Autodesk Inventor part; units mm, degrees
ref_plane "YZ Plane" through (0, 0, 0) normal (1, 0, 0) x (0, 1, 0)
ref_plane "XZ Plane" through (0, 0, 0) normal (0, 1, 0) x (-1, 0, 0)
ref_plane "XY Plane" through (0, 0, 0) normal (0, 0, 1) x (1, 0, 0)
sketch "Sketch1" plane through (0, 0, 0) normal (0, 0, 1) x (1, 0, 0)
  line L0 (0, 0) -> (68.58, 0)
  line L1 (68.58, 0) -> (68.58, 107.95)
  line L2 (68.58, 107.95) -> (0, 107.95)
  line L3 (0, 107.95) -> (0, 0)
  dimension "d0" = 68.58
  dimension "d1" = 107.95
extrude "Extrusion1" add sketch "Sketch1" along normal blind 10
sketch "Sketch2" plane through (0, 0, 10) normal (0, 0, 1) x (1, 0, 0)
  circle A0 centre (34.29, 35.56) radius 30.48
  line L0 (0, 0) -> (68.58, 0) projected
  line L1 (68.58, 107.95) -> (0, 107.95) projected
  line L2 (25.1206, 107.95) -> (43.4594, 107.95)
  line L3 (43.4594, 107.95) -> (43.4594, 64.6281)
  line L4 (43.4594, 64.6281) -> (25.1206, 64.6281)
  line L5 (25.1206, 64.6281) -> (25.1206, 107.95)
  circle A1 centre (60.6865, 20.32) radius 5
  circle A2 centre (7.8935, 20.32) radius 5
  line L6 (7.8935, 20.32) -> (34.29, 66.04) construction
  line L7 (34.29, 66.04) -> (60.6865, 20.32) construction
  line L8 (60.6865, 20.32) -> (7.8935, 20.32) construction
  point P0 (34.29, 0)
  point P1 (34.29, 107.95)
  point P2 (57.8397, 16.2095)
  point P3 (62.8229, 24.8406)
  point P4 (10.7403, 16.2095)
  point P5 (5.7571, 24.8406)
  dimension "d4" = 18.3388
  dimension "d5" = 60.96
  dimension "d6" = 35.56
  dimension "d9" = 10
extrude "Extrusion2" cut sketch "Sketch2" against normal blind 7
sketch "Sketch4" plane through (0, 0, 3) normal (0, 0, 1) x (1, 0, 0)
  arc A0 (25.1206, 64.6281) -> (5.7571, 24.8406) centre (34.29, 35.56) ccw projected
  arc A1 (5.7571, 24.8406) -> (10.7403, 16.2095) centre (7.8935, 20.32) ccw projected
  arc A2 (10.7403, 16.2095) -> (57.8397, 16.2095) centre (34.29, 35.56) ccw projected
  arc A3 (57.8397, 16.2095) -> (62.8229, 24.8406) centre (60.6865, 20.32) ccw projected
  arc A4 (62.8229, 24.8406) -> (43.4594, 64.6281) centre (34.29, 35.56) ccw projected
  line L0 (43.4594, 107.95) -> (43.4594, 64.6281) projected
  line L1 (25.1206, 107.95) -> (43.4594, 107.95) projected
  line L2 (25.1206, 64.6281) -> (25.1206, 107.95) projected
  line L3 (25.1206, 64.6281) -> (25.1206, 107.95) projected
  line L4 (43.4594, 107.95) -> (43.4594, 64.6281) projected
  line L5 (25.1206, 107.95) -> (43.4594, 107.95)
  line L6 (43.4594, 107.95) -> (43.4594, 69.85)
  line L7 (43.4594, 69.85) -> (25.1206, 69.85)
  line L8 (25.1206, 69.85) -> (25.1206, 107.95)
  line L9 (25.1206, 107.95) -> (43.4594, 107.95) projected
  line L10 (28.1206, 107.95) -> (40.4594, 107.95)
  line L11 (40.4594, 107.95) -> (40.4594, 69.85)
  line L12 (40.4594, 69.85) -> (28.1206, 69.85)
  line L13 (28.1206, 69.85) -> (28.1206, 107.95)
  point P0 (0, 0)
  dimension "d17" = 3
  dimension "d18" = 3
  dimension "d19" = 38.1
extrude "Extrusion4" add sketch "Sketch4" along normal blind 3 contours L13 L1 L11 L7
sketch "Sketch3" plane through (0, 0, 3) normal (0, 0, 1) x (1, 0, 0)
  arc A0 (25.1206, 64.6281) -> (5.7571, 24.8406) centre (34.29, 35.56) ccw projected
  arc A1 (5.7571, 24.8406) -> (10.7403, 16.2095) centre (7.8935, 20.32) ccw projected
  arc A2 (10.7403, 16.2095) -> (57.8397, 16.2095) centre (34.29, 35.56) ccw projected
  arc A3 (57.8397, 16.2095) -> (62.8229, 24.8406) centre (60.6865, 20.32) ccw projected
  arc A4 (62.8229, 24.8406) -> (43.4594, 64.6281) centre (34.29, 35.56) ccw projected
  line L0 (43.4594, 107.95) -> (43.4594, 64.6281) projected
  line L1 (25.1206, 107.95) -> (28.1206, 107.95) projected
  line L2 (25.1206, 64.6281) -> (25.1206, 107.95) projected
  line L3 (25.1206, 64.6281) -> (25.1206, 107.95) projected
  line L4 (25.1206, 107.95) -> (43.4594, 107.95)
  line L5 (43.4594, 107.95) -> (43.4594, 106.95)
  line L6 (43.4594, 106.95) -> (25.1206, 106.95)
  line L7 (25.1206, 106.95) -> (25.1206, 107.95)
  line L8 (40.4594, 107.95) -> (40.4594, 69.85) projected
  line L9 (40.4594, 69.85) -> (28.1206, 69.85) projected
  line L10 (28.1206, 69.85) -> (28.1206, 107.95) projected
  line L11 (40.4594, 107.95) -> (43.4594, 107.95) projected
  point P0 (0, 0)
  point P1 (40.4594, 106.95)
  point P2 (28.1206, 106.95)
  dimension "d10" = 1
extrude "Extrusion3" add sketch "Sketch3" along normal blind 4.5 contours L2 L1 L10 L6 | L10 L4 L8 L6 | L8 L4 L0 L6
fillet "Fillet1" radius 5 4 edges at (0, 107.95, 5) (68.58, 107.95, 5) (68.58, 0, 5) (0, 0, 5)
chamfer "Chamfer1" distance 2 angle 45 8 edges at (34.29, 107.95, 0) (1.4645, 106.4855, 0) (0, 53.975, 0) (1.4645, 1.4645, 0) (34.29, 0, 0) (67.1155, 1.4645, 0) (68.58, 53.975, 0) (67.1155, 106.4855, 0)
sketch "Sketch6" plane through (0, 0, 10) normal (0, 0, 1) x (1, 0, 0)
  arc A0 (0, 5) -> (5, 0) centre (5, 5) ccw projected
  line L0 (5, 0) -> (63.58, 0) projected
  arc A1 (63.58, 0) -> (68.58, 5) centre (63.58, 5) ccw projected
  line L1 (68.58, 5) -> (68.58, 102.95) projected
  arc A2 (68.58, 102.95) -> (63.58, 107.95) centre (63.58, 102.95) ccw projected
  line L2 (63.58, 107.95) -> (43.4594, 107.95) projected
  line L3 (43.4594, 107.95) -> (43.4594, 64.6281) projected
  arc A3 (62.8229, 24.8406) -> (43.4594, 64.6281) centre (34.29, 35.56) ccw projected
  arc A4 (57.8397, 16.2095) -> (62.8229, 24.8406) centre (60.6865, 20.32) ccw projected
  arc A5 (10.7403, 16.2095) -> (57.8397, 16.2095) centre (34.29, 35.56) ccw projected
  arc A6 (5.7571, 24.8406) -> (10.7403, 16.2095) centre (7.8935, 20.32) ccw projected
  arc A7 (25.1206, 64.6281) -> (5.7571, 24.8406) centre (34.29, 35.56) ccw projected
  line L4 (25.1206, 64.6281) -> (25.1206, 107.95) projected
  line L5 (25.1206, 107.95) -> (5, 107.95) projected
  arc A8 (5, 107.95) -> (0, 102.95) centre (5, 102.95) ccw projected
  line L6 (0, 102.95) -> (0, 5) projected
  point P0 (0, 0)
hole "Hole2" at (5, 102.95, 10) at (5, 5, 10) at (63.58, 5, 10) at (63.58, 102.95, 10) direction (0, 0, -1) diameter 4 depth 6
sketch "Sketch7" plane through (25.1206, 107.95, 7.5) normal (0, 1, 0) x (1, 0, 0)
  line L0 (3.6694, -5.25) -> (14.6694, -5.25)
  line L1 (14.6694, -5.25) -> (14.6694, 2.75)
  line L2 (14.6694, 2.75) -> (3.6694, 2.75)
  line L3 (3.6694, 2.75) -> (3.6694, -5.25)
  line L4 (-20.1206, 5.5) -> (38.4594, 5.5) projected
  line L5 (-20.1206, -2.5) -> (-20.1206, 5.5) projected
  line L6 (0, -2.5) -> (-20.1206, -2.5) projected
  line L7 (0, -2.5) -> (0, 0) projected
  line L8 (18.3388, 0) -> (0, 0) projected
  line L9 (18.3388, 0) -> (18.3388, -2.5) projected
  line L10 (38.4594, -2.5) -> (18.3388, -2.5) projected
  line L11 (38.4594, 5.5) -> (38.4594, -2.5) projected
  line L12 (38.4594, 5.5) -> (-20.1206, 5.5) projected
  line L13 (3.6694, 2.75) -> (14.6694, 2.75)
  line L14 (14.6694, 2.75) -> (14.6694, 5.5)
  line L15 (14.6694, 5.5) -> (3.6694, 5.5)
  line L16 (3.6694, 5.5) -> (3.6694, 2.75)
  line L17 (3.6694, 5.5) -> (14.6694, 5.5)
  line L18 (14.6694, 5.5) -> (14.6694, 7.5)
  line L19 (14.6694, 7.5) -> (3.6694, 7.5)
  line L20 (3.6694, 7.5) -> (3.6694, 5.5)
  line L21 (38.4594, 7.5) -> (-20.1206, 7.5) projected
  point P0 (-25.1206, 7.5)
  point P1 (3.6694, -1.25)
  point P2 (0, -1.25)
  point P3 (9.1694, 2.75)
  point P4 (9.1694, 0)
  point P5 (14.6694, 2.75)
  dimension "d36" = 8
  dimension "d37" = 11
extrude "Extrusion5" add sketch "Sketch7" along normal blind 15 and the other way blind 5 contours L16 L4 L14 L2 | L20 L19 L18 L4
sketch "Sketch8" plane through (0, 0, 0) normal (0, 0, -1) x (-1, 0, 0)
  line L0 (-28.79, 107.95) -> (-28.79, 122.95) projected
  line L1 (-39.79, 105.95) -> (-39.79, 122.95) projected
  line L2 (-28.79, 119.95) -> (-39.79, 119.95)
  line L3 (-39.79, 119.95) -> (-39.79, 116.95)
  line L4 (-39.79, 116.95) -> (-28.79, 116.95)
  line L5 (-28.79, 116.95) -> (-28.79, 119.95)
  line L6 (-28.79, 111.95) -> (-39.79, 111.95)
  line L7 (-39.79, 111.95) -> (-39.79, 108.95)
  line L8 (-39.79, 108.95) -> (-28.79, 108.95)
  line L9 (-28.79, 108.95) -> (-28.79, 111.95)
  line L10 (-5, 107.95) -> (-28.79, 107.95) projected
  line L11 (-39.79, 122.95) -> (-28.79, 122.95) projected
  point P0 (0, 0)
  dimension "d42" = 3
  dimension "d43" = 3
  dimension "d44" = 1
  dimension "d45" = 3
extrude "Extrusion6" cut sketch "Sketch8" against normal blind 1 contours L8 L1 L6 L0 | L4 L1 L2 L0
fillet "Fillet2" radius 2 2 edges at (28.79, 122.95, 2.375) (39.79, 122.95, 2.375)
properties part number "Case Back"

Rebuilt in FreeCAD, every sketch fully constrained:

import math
import FreeCAD as App
import Part
import Sketcher
from FreeCAD import Vector
Q = App.Units.Quantity


def edges_at(feature, points):
    """Names of the edges that pass closest to the given points."""
    edges = feature.Shape.Edges
    near = lambda p: min(range(len(edges)), key=lambda i: edges[i].distToShape(Part.Vertex(*p))[0])
    return sorted({f"Edge{near(p) + 1}" for p in points})

doc = App.newDocument("Part")
body = doc.addObject("PartDesign::Body", "Body")

# Sketch on XY plane
sketch1 = body.newObject("Sketcher::SketchObject", "Sketch")
sketch1.AttachmentSupport = (doc.getObject("XY_Plane"), [""])
sketch1.MapMode = "FlatFace"
sketch1.addGeometry(Part.LineSegment(Vector(0, 108, 0), Vector(0, 0, 0)), False)
sketch1.addGeometry(Part.LineSegment(Vector(0, 0, 0), Vector(69, 0, 0)), False)
sketch1.addGeometry(Part.LineSegment(Vector(69, 0, 0), Vector(69, 108, 0)), False)
sketch1.addGeometry(Part.LineSegment(Vector(69, 108, 0), Vector(0, 108, 0)), False)
sketch1.addConstraint(Sketcher.Constraint("Coincident", 0, 2, 1, 1))
sketch1.addConstraint(Sketcher.Constraint("Coincident", 1, 2, 2, 1))
sketch1.addConstraint(Sketcher.Constraint("Coincident", 2, 2, 3, 1))
sketch1.addConstraint(Sketcher.Constraint("Coincident", 3, 2, 0, 1))
sketch1.addConstraint(Sketcher.Constraint("Vertical", 0))
sketch1.addConstraint(Sketcher.Constraint("Horizontal", 1))
sketch1.addConstraint(Sketcher.Constraint("Vertical", 2))
sketch1.addConstraint(Sketcher.Constraint("Horizontal", 3))
sketch1.addConstraint(Sketcher.Constraint("Coincident", 0, 2, -1, 1))
sketch1.addConstraint(Sketcher.Constraint("DistanceX", 1, 1, 1, 2, Q("68.58 mm")))
sketch1.addConstraint(Sketcher.Constraint("DistanceY", 0, 2, 0, 1, Q("107.95 mm")))
pad1 = body.newObject("PartDesign::Pad", "Pad")
pad1.Profile = sketch1
pad1.Length = 10

# Sketch on XY plane
sketch2 = body.newObject("Sketcher::SketchObject", "Sketch001")
sketch2.AttachmentSupport = (doc.getObject("XY_Plane"), [""])
sketch2.MapMode = "FlatFace"
sketch2.AttachmentOffset = App.Placement(Vector(0, 0, 10), App.Rotation())
sketch2.addGeometry(Part.ArcOfCircle(Part.Circle(Vector(34, 36, 0), Vector(0, 0, 1), 30), math.radians(-21), math.radians(72)), False)
sketch2.addGeometry(Part.LineSegment(Vector(43, 65, 0), Vector(43, 108, 0)), False)
sketch2.addGeometry(Part.LineSegment(Vector(43, 108, 0), Vector(25, 108, 0)), False)
sketch2.addGeometry(Part.LineSegment(Vector(25, 108, 0), Vector(25, 65, 0)), False)
sketch2.addGeometry(Part.ArcOfCircle(Part.Circle(Vector(34, 36, 0), Vector(0, 0, 1), 30), math.radians(108), math.radians(201)), False)
sketch2.addGeometry(Part.ArcOfCircle(Part.Circle(Vector(8, 20, 0), Vector(0, 0, 1), 5), math.radians(115), math.radians(305)), False)
sketch2.addGeometry(Part.ArcOfCircle(Part.Circle(Vector(34, 36, 0), Vector(0, 0, 1), 30), math.radians(-141), math.radians(-39)), False)
sketch2.addGeometry(Part.ArcOfCircle(Part.Circle(Vector(61, 20, 0), Vector(0, 0, 1), 5), math.radians(-125), math.radians(65)), False)
sketch2.addConstraint(Sketcher.Constraint("Coincident", 0, 2, 1, 1))
sketch2.addConstraint(Sketcher.Constraint("Coincident", 1, 2, 2, 1))
sketch2.addConstraint(Sketcher.Constraint("Coincident", 2, 2, 3, 1))
sketch2.addConstraint(Sketcher.Constraint("Coincident", 3, 2, 4, 1))
sketch2.addConstraint(Sketcher.Constraint("Coincident", 4, 2, 5, 1))
sketch2.addConstraint(Sketcher.Constraint("Coincident", 5, 2, 6, 1))
sketch2.addConstraint(Sketcher.Constraint("Coincident", 6, 2, 7, 1))
sketch2.addConstraint(Sketcher.Constraint("Coincident", 7, 2, 0, 1))
sketch2.addConstraint(Sketcher.Constraint("Vertical", 1))
sketch2.addConstraint(Sketcher.Constraint("Horizontal", 2))
sketch2.addConstraint(Sketcher.Constraint("Vertical", 3))
sketch2.addConstraint(Sketcher.Constraint("Coincident", 4, 3, 0, 3))
sketch2.addConstraint(Sketcher.Constraint("Coincident", 6, 3, 0, 3))
sketch2.addConstraint(Sketcher.Constraint("Equal", 0, 4))
sketch2.addConstraint(Sketcher.Constraint("Equal", 4, 6))
sketch2.addConstraint(Sketcher.Constraint("Equal", 5, 7))
sketch2.addConstraint(Sketcher.Constraint("Horizontal", 5, 3, 7, 3))
sketch2.addConstraint(Sketcher.Constraint("Horizontal", 0, 2, 3, 2))
sketch2.addConstraint(Sketcher.Constraint("Horizontal", 5, 2, 6, 2))
sketch2.addConstraint(Sketcher.Constraint("Radius", 5, Q("5 mm")))
sketch2.addConstraint(Sketcher.Constraint("Radius", 0, Q("30.48 mm")))
sketch2.addConstraint(Sketcher.Constraint("DistanceY", -1, 1, 0, 3, Q("35.56 mm")))
sketch2.addConstraint(Sketcher.Constraint("DistanceX", 2, 2, 2, 1, Q("18.3388 mm")))
sketch2.addConstraint(Sketcher.Constraint("DistanceY", 1, 1, 1, 2, Q("43.322 mm")))
sketch2.addConstraint(Sketcher.Constraint("DistanceX", -1, 1, 0, 3, Q("34.29 mm")))
sketch2.addConstraint(Sketcher.Constraint("DistanceY", -1, 1, 5, 3, Q("20.32 mm")))
sketch2.addConstraint(Sketcher.Constraint("DistanceX", 5, 3, 7, 3, Q("52.793 mm")))
pocket1 = body.newObject("PartDesign::Pocket", "Pocket")
pocket1.Profile = sketch2
pocket1.Length = 7

# Sketch on XY plane
sketch3 = body.newObject("Sketcher::SketchObject", "Sketch002")
sketch3.AttachmentSupport = (doc.getObject("XY_Plane"), [""])
sketch3.MapMode = "FlatFace"
sketch3.AttachmentOffset = App.Placement(Vector(0, 0, 3), App.Rotation())
sketch3.addGeometry(Part.LineSegment(Vector(28, 108, 0), Vector(28, 70, 0)), False)
sketch3.addGeometry(Part.LineSegment(Vector(28, 70, 0), Vector(40, 70, 0)), False)
sketch3.addGeometry(Part.LineSegment(Vector(40, 70, 0), Vector(40, 108, 0)), False)
sketch3.addGeometry(Part.LineSegment(Vector(40, 108, 0), Vector(28, 108, 0)), False)
sketch3.addConstraint(Sketcher.Constraint("Coincident", 0, 2, 1, 1))
sketch3.addConstraint(Sketcher.Constraint("Coincident", 1, 2, 2, 1))
sketch3.addConstraint(Sketcher.Constraint("Coincident", 2, 2, 3, 1))
sketch3.addConstraint(Sketcher.Constraint("Coincident", 3, 2, 0, 1))
sketch3.addConstraint(Sketcher.Constraint("Vertical", 0))
sketch3.addConstraint(Sketcher.Constraint("Horizontal", 1))
sketch3.addConstraint(Sketcher.Constraint("Vertical", 2))
sketch3.addConstraint(Sketcher.Constraint("Horizontal", 3))
sketch3.addConstraint(Sketcher.Constraint("DistanceY", 0, 2, 0, 1, Q("38.1 mm")))
sketch3.addConstraint(Sketcher.Constraint("DistanceY", -1, 1, 0, 2, Q("69.85 mm")))
sketch3.addConstraint(Sketcher.Constraint("DistanceX", 1, 1, 1, 2, Q("12.3388 mm")))
sketch3.addConstraint(Sketcher.Constraint("DistanceX", -1, 1, 0, 2, Q("28.1206 mm")))
pad2 = body.newObject("PartDesign::Pad", "Pad001")
pad2.Profile = sketch3
pad2.Length = 3

# Sketch on XY plane
sketch4 = body.newObject("Sketcher::SketchObject", "Sketch003")
sketch4.AttachmentSupport = (doc.getObject("XY_Plane"), [""])
sketch4.MapMode = "FlatFace"
sketch4.AttachmentOffset = App.Placement(Vector(0, 0, 3), App.Rotation())
sketch4.addGeometry(Part.LineSegment(Vector(25.1, 108, 0), Vector(25.1, 107, 0)), False)
sketch4.addGeometry(Part.LineSegment(Vector(25.1, 107, 0), Vector(43.5, 107, 0)), False)
sketch4.addGeometry(Part.LineSegment(Vector(43.5, 107, 0), Vector(43.5, 108, 0)), False)
sketch4.addGeometry(Part.LineSegment(Vector(43.5, 108, 0), Vector(25.1, 108, 0)), False)
sketch4.addConstraint(Sketcher.Constraint("Coincident", 0, 2, 1, 1))
sketch4.addConstraint(Sketcher.Constraint("Coincident", 1, 2, 2, 1))
sketch4.addConstraint(Sketcher.Constraint("Coincident", 2, 2, 3, 1))
sketch4.addConstraint(Sketcher.Constraint("Coincident", 3, 2, 0, 1))
sketch4.addConstraint(Sketcher.Constraint("Vertical", 0))
sketch4.addConstraint(Sketcher.Constraint("Horizontal", 1))
sketch4.addConstraint(Sketcher.Constraint("Vertical", 2))
sketch4.addConstraint(Sketcher.Constraint("Horizontal", 3))
sketch4.addConstraint(Sketcher.Constraint("DistanceY", 0, 2, 0, 1, Q("1 mm")))
sketch4.addConstraint(Sketcher.Constraint("DistanceY", -1, 1, 0, 2, Q("106.95 mm")))
sketch4.addConstraint(Sketcher.Constraint("DistanceX", 1, 1, 1, 2, Q("18.3388 mm")))
sketch4.addConstraint(Sketcher.Constraint("DistanceX", -1, 1, 0, 2, Q("25.1206 mm")))
pad3 = body.newObject("PartDesign::Pad", "Pad002")
pad3.Profile = sketch4
pad3.Length = 4.5
doc.recompute()

fillet = body.newObject("PartDesign::Fillet", "Fillet")
fillet.Base = (pad3, edges_at(pad3, [
    (0, 107.95, 5),
    (68.58, 107.95, 5),
    (68.58, 0, 5),
    (0, 0, 5),
]))
fillet.Radius = 5
doc.recompute()

chamfer = body.newObject("PartDesign::Chamfer", "Chamfer")
chamfer.Base = (fillet, edges_at(fillet, [
    (34.29, 107.95, 0),
    (1.464, 106.486, 0),
    (0, 53.975, 0),
    (1.464, 1.464, 0),
    (34.29, 0, 0),
    (67.115, 1.464, 0),
    (68.58, 53.975, 0),
    (67.115, 106.486, 0),
]))
chamfer.Size = 2

# Sketch on XY plane
sketch5 = body.newObject("Sketcher::SketchObject", "Sketch004")
sketch5.AttachmentSupport = (doc.getObject("XY_Plane"), [""])
sketch5.MapMode = "FlatFace"
sketch5.AttachmentOffset = App.Placement(Vector(0, 0, 10), App.Rotation())
sketch5.addGeometry(Part.Circle(Vector(5, 103, 0), Vector(0, 0, 1), 2), False)
sketch5.addGeometry(Part.Circle(Vector(5, 5, 0), Vector(0, 0, 1), 2), False)
sketch5.addGeometry(Part.Circle(Vector(63.6, 5, 0), Vector(0, 0, 1), 2), False)
sketch5.addGeometry(Part.Circle(Vector(63.6, 103, 0), Vector(0, 0, 1), 2), False)
sketch5.addConstraint(Sketcher.Constraint("Equal", 0, 1))
sketch5.addConstraint(Sketcher.Constraint("Equal", 1, 2))
sketch5.addConstraint(Sketcher.Constraint("Equal", 2, 3))
sketch5.addConstraint(Sketcher.Constraint("Horizontal", 1, 3, 2, 3))
sketch5.addConstraint(Sketcher.Constraint("Horizontal", 0, 3, 3, 3))
sketch5.addConstraint(Sketcher.Constraint("Vertical", 0, 3, 1, 3))
sketch5.addConstraint(Sketcher.Constraint("Vertical", 2, 3, 3, 3))
sketch5.addConstraint(Sketcher.Constraint("Diameter", 0, Q("4 mm")))
sketch5.addConstraint(Sketcher.Constraint("DistanceX", -1, 1, 0, 3, Q("5 mm")))
sketch5.addConstraint(Sketcher.Constraint("DistanceY", -1, 1, 1, 3, Q("5 mm")))
sketch5.addConstraint(Sketcher.Constraint("DistanceY", -1, 1, 0, 3, Q("102.95 mm")))
sketch5.addConstraint(Sketcher.Constraint("DistanceX", -1, 1, 2, 3, Q("63.58 mm")))
doc.recompute()
hole = body.newObject("PartDesign::Hole", "Hole")
hole.Profile = sketch5
hole.ThreadType = "None"
hole.Diameter = 4
hole.DepthType = "Dimension"
hole.Depth = 6
hole.DrillPoint = "Flat"

# Sketch on XZ plane
sketch6 = body.newObject("Sketcher::SketchObject", "Sketch005")
sketch6.AttachmentSupport = (doc.getObject("XZ_Plane"), [""])
sketch6.MapMode = "FlatFace"
sketch6.AttachmentOffset = App.Placement(Vector(0, 0, -107.95), App.Rotation())
sketch6.addGeometry(Part.LineSegment(Vector(28.8, 4.8, 0), Vector(39.8, 4.8, 0)), False)
sketch6.addGeometry(Part.LineSegment(Vector(39.8, 4.8, 0), Vector(39.8, 0, 0)), False)
sketch6.addGeometry(Part.LineSegment(Vector(39.8, 0, 0), Vector(28.8, 0, 0)), False)
sketch6.addGeometry(Part.LineSegment(Vector(28.8, 0, 0), Vector(28.8, 4.8, 0)), False)
sketch6.addConstraint(Sketcher.Constraint("Coincident", 0, 2, 1, 1))
sketch6.addConstraint(Sketcher.Constraint("Coincident", 1, 2, 2, 1))
sketch6.addConstraint(Sketcher.Constraint("Coincident", 2, 2, 3, 1))
sketch6.addConstraint(Sketcher.Constraint("Coincident", 3, 2, 0, 1))
sketch6.addConstraint(Sketcher.Constraint("Horizontal", 0))
sketch6.addConstraint(Sketcher.Constraint("Vertical", 1))
sketch6.addConstraint(Sketcher.Constraint("Horizontal", 2))
sketch6.addConstraint(Sketcher.Constraint("Vertical", 3))
sketch6.addConstraint(Sketcher.Constraint("PointOnObject", 1, 2, -1))
sketch6.addConstraint(Sketcher.Constraint("DistanceX", 0, 1, 0, 2, Q("11 mm")))
sketch6.addConstraint(Sketcher.Constraint("DistanceY", 1, 2, 1, 1, Q("4.75 mm")))
sketch6.addConstraint(Sketcher.Constraint("DistanceX", -1, 1, 0, 2, Q("39.79 mm")))
pad4 = body.newObject("PartDesign::Pad", "Pad003")
pad4.Profile = sketch6
pad4.Type = "TwoLengths"
pad4.Length = 15
pad4.Length2 = 5
pad4.Reversed = True

# Sketch on XY plane
sketch7 = body.newObject("Sketcher::SketchObject", "Sketch006")
sketch7.AttachmentSupport = (doc.getObject("XY_Plane"), [""])
sketch7.MapMode = "FlatFace"
sketch7.addGeometry(Part.LineSegment(Vector(39.8, 109, 0), Vector(28.8, 109, 0)), False)
sketch7.addGeometry(Part.LineSegment(Vector(28.8, 109, 0), Vector(28.8, 112, 0)), False)
sketch7.addGeometry(Part.LineSegment(Vector(28.8, 112, 0), Vector(39.8, 112, 0)), False)
sketch7.addGeometry(Part.LineSegment(Vector(39.8, 112, 0), Vector(39.8, 109, 0)), False)
sketch7.addGeometry(Part.LineSegment(Vector(39.8, 117, 0), Vector(28.8, 117, 0)), False)
sketch7.addGeometry(Part.LineSegment(Vector(28.8, 117, 0), Vector(28.8, 120, 0)), False)
sketch7.addGeometry(Part.LineSegment(Vector(28.8, 120, 0), Vector(39.8, 120, 0)), False)
sketch7.addGeometry(Part.LineSegment(Vector(39.8, 120, 0), Vector(39.8, 117, 0)), False)
sketch7.addConstraint(Sketcher.Constraint("Coincident", 0, 2, 1, 1))
sketch7.addConstraint(Sketcher.Constraint("Coincident", 1, 2, 2, 1))
sketch7.addConstraint(Sketcher.Constraint("Coincident", 2, 2, 3, 1))
sketch7.addConstraint(Sketcher.Constraint("Coincident", 3, 2, 0, 1))
sketch7.addConstraint(Sketcher.Constraint("Coincident", 4, 2, 5, 1))
sketch7.addConstraint(Sketcher.Constraint("Coincident", 5, 2, 6, 1))
sketch7.addConstraint(Sketcher.Constraint("Coincident", 6, 2, 7, 1))
sketch7.addConstraint(Sketcher.Constraint("Coincident", 7, 2, 4, 1))
sketch7.addConstraint(Sketcher.Constraint("Horizontal", 0))
sketch7.addConstraint(Sketcher.Constraint("Vertical", 1))
sketch7.addConstraint(Sketcher.Constraint("Horizontal", 2))
sketch7.addConstraint(Sketcher.Constraint("Vertical", 3))
sketch7.addConstraint(Sketcher.Constraint("Horizontal", 4))
sketch7.addConstraint(Sketcher.Constraint("Vertical", 5))
sketch7.addConstraint(Sketcher.Constraint("Horizontal", 6))
sketch7.addConstraint(Sketcher.Constraint("Vertical", 7))
sketch7.addConstraint(Sketcher.Constraint("Vertical", 1, 2, 4, 2))
sketch7.addConstraint(Sketcher.Constraint("Vertical", 3, 2, 6, 2))
sketch7.addConstraint(Sketcher.Constraint("Equal", 3, 5))
sketch7.addConstraint(Sketcher.Constraint("DistanceY", 1, 1, 1, 2, Q("3 mm")))
sketch7.addConstraint(Sketcher.Constraint("DistanceX", 0, 2, 0, 1, Q("11 mm")))
sketch7.addConstraint(Sketcher.Constraint("DistanceY", 1, 2, 4, 2, Q("5 mm")))
sketch7.addConstraint(Sketcher.Constraint("DistanceX", -1, 1, 0, 2, Q("28.79 mm")))
sketch7.addConstraint(Sketcher.Constraint("DistanceY", -1, 1, 0, 2, Q("108.95 mm")))
pocket2 = body.newObject("PartDesign::Pocket", "Pocket001")
pocket2.Profile = sketch7
pocket2.Length = 1
pocket2.Reversed = True
doc.recompute()

fillet2 = body.newObject("PartDesign::Fillet", "Fillet001")
fillet2.Base = (pocket2, edges_at(pocket2, [(28.79, 122.95, 2.375), (39.79, 122.95, 2.375)]))
fillet2.Radius = 2

doc.recompute()
